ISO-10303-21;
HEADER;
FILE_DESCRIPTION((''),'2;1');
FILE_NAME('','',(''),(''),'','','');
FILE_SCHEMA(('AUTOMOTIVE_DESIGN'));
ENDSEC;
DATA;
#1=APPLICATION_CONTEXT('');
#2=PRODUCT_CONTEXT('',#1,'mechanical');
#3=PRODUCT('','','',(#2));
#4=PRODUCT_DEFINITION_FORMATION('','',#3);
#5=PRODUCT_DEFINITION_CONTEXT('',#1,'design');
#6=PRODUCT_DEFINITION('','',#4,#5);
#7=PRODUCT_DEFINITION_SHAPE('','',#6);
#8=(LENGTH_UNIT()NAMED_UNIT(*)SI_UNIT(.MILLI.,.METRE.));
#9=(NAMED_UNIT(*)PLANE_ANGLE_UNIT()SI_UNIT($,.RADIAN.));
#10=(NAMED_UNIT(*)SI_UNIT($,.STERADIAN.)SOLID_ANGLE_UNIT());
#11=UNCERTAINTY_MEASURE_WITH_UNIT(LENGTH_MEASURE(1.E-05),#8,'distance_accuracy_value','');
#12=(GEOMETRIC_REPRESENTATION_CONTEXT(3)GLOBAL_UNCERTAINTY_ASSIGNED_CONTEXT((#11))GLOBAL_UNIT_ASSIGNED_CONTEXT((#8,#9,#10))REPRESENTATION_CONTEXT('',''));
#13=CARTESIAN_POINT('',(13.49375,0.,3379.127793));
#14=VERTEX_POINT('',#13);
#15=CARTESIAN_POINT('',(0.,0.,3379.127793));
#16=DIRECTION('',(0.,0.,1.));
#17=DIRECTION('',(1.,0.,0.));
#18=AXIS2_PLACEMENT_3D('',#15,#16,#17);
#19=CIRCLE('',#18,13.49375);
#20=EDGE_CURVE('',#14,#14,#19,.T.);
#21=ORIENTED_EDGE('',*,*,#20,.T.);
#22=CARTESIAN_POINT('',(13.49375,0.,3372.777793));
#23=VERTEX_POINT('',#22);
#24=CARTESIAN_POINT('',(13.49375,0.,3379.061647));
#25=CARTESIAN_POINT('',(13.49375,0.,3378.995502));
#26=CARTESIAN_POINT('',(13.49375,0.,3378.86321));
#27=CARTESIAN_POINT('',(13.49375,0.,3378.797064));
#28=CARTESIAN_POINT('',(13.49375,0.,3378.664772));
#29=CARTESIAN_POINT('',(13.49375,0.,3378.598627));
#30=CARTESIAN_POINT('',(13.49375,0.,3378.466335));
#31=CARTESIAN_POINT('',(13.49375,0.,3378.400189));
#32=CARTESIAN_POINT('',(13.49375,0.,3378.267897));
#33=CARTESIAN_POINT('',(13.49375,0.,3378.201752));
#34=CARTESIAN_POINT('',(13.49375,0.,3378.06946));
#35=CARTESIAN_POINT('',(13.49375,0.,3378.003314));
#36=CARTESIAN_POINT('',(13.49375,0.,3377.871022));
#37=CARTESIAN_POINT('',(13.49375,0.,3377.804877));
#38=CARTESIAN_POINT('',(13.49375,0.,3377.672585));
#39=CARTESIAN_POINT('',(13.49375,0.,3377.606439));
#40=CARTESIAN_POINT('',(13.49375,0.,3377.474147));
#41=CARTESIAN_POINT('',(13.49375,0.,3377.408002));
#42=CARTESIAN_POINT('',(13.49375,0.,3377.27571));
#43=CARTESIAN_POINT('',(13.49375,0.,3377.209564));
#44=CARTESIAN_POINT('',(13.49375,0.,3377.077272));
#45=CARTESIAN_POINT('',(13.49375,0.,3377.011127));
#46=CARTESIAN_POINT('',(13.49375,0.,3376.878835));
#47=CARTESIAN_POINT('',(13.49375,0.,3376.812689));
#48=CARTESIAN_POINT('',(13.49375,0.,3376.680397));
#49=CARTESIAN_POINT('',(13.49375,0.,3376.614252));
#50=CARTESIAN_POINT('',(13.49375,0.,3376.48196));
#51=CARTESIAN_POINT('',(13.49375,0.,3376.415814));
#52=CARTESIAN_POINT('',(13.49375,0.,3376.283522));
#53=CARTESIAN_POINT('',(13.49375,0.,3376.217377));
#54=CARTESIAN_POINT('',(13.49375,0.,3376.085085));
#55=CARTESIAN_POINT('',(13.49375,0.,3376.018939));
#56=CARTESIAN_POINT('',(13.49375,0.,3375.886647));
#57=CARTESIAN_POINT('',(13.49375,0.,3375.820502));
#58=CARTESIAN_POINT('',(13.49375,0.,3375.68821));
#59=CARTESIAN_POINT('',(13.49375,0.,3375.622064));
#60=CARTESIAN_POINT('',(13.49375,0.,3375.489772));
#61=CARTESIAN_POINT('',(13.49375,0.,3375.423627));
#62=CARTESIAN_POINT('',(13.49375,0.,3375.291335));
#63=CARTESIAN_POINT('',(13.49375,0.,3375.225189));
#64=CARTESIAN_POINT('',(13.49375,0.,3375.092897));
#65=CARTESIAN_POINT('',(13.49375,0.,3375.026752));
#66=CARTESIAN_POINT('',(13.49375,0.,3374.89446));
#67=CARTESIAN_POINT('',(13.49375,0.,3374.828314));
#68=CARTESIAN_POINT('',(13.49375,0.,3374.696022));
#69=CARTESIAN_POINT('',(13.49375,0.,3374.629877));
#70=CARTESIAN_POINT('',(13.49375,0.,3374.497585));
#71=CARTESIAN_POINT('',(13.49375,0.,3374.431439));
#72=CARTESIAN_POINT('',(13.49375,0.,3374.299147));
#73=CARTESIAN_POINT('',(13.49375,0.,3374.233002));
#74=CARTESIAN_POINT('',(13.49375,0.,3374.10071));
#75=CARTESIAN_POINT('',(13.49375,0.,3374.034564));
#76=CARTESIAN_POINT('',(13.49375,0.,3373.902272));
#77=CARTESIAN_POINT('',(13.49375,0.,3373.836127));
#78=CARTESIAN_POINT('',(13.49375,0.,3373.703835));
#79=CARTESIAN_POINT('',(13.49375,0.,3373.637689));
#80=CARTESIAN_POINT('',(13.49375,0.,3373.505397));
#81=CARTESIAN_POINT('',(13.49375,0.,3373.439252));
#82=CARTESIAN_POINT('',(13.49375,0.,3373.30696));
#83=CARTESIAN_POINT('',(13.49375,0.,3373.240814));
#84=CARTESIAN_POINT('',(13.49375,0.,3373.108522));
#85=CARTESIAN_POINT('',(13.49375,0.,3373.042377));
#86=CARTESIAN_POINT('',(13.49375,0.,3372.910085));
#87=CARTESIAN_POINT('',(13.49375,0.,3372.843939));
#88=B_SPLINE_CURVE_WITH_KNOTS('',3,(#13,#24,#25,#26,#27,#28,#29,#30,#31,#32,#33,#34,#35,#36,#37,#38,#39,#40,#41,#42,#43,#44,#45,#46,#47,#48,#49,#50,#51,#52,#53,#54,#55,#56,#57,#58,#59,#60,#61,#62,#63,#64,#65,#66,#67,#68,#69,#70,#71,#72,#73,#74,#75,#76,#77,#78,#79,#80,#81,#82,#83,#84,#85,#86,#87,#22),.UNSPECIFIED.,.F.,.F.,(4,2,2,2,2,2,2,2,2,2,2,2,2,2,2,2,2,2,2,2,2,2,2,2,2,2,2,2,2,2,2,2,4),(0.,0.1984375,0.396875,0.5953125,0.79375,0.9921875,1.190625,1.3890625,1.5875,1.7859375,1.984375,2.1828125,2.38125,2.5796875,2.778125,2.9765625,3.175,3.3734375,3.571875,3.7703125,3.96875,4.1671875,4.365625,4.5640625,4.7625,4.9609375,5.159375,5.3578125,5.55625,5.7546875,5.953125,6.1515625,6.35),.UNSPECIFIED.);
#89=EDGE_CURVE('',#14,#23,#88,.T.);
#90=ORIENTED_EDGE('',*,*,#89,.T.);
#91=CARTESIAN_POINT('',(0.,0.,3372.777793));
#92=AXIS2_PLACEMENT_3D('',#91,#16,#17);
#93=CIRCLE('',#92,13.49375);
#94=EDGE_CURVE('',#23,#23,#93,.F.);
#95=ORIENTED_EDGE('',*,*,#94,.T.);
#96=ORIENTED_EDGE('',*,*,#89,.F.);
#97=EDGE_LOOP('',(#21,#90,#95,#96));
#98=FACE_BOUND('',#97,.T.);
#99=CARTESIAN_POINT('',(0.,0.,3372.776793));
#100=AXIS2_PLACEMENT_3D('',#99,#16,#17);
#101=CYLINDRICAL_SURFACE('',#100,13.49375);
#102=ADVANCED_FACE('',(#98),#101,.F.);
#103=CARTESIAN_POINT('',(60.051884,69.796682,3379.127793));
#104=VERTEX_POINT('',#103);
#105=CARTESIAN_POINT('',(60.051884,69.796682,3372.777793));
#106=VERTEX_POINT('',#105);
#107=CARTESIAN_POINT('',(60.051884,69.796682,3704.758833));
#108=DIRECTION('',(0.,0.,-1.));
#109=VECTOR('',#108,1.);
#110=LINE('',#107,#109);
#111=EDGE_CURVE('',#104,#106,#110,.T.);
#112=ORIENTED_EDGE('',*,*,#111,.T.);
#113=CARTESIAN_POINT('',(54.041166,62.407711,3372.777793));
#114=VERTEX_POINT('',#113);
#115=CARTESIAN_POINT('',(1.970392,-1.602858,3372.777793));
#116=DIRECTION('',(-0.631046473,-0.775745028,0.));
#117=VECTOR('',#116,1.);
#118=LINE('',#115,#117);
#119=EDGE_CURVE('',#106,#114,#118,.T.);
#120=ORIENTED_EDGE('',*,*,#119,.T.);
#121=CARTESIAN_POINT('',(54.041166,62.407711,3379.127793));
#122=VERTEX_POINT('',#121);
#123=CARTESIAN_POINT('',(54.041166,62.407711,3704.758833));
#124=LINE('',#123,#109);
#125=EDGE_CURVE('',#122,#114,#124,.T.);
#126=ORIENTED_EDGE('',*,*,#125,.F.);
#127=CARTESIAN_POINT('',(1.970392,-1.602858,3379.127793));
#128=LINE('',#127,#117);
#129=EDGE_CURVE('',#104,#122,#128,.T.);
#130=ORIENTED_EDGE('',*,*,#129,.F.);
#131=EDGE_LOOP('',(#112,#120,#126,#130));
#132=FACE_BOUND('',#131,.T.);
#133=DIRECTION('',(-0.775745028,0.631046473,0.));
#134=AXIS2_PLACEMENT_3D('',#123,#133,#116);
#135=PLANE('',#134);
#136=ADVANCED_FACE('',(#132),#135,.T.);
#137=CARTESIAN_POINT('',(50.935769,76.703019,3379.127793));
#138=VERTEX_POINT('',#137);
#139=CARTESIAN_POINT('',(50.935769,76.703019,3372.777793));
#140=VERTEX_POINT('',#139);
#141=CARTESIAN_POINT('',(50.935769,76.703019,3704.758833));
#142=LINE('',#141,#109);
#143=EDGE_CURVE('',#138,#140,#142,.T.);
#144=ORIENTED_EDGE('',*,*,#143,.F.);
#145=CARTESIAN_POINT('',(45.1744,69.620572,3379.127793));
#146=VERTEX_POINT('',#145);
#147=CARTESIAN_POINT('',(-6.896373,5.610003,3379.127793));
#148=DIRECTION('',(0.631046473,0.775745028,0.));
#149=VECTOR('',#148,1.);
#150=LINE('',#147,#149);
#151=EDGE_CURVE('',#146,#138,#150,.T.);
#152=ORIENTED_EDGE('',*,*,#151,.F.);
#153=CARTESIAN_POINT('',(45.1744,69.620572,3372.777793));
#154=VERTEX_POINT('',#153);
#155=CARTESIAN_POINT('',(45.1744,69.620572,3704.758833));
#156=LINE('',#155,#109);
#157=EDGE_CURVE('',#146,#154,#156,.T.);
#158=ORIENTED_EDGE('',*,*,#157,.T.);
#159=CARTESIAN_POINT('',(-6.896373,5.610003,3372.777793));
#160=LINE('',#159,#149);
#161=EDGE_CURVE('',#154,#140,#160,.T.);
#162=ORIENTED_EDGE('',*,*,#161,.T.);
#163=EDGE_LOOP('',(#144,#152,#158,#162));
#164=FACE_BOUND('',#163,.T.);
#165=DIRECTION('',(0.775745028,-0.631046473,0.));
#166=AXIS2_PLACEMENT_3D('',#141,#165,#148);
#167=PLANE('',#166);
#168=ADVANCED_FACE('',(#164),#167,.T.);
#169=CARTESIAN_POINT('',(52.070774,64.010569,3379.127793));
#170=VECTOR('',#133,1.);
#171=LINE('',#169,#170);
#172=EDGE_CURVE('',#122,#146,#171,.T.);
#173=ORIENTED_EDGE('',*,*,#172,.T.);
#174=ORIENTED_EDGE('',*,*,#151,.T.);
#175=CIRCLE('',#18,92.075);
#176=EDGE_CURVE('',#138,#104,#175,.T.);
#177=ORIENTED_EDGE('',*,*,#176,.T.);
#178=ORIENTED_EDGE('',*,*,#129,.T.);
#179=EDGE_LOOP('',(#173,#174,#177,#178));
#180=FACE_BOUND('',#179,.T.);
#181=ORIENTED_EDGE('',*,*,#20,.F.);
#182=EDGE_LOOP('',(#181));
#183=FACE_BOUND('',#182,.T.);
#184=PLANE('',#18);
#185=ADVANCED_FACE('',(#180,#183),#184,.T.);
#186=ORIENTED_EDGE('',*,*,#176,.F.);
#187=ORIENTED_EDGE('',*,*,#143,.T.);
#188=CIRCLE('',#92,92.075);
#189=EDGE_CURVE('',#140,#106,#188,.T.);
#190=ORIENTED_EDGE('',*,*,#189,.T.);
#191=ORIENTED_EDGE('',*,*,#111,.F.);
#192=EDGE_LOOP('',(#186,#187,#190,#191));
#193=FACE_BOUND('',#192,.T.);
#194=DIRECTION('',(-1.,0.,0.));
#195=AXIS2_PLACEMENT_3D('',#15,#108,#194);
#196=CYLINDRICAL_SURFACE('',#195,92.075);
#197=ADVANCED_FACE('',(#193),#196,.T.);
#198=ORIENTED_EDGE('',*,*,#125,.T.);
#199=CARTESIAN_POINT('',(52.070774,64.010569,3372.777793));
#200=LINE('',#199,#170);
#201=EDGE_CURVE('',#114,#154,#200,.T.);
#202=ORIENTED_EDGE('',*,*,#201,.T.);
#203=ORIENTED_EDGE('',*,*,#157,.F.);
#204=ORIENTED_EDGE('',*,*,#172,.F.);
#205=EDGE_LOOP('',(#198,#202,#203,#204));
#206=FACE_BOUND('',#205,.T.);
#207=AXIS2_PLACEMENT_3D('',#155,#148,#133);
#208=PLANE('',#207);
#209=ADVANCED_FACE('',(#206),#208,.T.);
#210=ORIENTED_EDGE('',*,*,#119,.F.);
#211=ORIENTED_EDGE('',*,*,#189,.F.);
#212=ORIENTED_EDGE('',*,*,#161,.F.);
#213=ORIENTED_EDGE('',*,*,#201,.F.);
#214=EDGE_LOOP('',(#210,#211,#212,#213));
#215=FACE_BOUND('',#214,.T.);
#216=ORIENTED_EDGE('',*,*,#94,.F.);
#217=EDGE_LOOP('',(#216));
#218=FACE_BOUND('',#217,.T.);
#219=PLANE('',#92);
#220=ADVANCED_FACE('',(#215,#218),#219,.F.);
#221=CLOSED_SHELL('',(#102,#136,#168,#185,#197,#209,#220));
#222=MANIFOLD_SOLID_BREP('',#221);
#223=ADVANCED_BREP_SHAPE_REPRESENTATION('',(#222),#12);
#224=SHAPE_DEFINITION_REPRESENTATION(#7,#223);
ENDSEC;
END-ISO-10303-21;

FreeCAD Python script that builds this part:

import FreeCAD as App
import Part
import Sketcher

V = App.Vector
Q = App.Units.Quantity


def add_polygon(sketch, points):
    """Adds a closed chain of lines whose ends are joined by coincident constraints."""
    first, n = sketch.GeometryCount, len(points)
    for a, b in zip(points, points[1:] + points[:1]):
        sketch.addGeometry(Part.LineSegment(App.Vector(*a, 0), App.Vector(*b, 0)), False)
    for i in range(n):
        sketch.addConstraint(Sketcher.Constraint("Coincident", first + i, 2, first + (i + 1) % n, 1))

doc = App.newDocument("Part")
params = doc.addObject("Spreadsheet::Sheet", "Params")
for row, (alias, value) in enumerate([
    ("sketch1_diameter", "7.25 in"),
    ("pad1_length", "0.25 in"),
    ("sketch2_diameter", "1.0625 in"),
    ("sketch3_length", "0.45 in"),
    ("sketch3_length2", "0.375 in"),
], start=1):
    params.set(f"A{row}", alias)
    params.set(f"B{row}", "=" + value)
    params.setAlias(f"B{row}", alias)

body = doc.addObject("PartDesign::Body", "Body")

# Sketch on XY plane
sketch1 = body.newObject("Sketcher::SketchObject", "Sketch")
sketch1.AttachmentSupport = (doc.getObject("XY_Plane"), [""])
sketch1.MapMode = "FlatFace"
sketch1.AttachmentOffset = App.Placement(V(0, 0, 3372.777793), App.Rotation())
sketch1.addGeometry(Part.Circle(V(0, 0, 0), V(0, 0, 1), 92), False)
sketch1.addConstraint([
    Sketcher.Constraint("Coincident", 0, 3, -1, 1),
    Sketcher.Constraint("Diameter", 0, Q("7.25 in")),
])
sketch1.setExpression("Constraints[1]", "Params.sketch1_diameter")
pad1 = body.newObject("PartDesign::Pad", "Pad")
pad1.Profile = sketch1
pad1.setExpression("Length", "Params.pad1_length")

# Sketch on XY plane
sketch2 = body.newObject("Sketcher::SketchObject", "Sketch001")
sketch2.AttachmentSupport = (doc.getObject("XY_Plane"), [""])
sketch2.MapMode = "FlatFace"
sketch2.AttachmentOffset = App.Placement(V(0, 0, 3379.127793), App.Rotation())
sketch2.addGeometry(Part.Circle(V(0, 0, 0), V(0, 0, 1), 13), False)
sketch2.addConstraint([
    Sketcher.Constraint("Coincident", 0, 3, -1, 1),
    Sketcher.Constraint("Diameter", 0, Q("1.0625 in")),
])
sketch2.setExpression("Constraints[1]", "Params.sketch2_diameter")
pocket1 = body.newObject("PartDesign::Pocket", "Pocket")
pocket1.Profile = sketch2
pocket1.Type = "UpToFirst"

# Sketch on XY plane
sketch3 = body.newObject("Sketcher::SketchObject", "Sketch002")
sketch3.AttachmentSupport = (doc.getObject("XY_Plane"), [""])
sketch3.MapMode = "FlatFace"
sketch3.AttachmentOffset = App.Placement(V(0, 0, 3379.127793), App.Rotation())
add_polygon(sketch3, [(337.604296, 429.104457), (50.935769, 76.703019), (45.1744, 69.620572), (54.041166, 62.407711), (60.051884, 69.796682), (346.720411, 422.19812), (895.364622, 1146.388704), (886.248507, 1153.29504)])  # lines 0-7
sketch3.addConstraint([
    Sketcher.Constraint("Parallel", 0, 1),
    Sketcher.Constraint("Perpendicular", 1, 2),
    Sketcher.Constraint("Perpendicular", 2, 3),
    Sketcher.Constraint("Parallel", 3, 4),
    Sketcher.Constraint("Perpendicular", 5, 6),
    Sketcher.Constraint("Perpendicular", 6, 7),
    Sketcher.Constraint("Equal", 0, 4),
    Sketcher.Constraint("Equal", 5, 7),
    Sketcher.Constraint("Distance", 2, Q("0.45 in")),
    Sketcher.Constraint("Distance", 3, Q("0.375 in")),
    Sketcher.Constraint("DistanceX", -1, 1, 1, 2, 45.1744),
    Sketcher.Constraint("DistanceY", 0, 2, 4, 2, 345.495102),
    Sketcher.Constraint("DistanceX", -1, 1, 0, 2, 50.935769),
    Sketcher.Constraint("DistanceY", -1, 1, 0, 2, 76.703019),
    Sketcher.Constraint("DistanceY", -1, 1, 2, 2, 62.407711),
    Sketcher.Constraint("DistanceY", -1, 1, 6, 2, 1153.29504),
])
sketch3.setExpression("Constraints[16]", "Params.sketch3_length")
sketch3.setExpression("Constraints[17]", "Params.sketch3_length2")
pocket2 = body.newObject("PartDesign::Pocket", "Pocket001")
pocket2.Profile = sketch3
pocket2.Type = "ThroughAll"
pocket2.Midplane = True

doc.recompute()
